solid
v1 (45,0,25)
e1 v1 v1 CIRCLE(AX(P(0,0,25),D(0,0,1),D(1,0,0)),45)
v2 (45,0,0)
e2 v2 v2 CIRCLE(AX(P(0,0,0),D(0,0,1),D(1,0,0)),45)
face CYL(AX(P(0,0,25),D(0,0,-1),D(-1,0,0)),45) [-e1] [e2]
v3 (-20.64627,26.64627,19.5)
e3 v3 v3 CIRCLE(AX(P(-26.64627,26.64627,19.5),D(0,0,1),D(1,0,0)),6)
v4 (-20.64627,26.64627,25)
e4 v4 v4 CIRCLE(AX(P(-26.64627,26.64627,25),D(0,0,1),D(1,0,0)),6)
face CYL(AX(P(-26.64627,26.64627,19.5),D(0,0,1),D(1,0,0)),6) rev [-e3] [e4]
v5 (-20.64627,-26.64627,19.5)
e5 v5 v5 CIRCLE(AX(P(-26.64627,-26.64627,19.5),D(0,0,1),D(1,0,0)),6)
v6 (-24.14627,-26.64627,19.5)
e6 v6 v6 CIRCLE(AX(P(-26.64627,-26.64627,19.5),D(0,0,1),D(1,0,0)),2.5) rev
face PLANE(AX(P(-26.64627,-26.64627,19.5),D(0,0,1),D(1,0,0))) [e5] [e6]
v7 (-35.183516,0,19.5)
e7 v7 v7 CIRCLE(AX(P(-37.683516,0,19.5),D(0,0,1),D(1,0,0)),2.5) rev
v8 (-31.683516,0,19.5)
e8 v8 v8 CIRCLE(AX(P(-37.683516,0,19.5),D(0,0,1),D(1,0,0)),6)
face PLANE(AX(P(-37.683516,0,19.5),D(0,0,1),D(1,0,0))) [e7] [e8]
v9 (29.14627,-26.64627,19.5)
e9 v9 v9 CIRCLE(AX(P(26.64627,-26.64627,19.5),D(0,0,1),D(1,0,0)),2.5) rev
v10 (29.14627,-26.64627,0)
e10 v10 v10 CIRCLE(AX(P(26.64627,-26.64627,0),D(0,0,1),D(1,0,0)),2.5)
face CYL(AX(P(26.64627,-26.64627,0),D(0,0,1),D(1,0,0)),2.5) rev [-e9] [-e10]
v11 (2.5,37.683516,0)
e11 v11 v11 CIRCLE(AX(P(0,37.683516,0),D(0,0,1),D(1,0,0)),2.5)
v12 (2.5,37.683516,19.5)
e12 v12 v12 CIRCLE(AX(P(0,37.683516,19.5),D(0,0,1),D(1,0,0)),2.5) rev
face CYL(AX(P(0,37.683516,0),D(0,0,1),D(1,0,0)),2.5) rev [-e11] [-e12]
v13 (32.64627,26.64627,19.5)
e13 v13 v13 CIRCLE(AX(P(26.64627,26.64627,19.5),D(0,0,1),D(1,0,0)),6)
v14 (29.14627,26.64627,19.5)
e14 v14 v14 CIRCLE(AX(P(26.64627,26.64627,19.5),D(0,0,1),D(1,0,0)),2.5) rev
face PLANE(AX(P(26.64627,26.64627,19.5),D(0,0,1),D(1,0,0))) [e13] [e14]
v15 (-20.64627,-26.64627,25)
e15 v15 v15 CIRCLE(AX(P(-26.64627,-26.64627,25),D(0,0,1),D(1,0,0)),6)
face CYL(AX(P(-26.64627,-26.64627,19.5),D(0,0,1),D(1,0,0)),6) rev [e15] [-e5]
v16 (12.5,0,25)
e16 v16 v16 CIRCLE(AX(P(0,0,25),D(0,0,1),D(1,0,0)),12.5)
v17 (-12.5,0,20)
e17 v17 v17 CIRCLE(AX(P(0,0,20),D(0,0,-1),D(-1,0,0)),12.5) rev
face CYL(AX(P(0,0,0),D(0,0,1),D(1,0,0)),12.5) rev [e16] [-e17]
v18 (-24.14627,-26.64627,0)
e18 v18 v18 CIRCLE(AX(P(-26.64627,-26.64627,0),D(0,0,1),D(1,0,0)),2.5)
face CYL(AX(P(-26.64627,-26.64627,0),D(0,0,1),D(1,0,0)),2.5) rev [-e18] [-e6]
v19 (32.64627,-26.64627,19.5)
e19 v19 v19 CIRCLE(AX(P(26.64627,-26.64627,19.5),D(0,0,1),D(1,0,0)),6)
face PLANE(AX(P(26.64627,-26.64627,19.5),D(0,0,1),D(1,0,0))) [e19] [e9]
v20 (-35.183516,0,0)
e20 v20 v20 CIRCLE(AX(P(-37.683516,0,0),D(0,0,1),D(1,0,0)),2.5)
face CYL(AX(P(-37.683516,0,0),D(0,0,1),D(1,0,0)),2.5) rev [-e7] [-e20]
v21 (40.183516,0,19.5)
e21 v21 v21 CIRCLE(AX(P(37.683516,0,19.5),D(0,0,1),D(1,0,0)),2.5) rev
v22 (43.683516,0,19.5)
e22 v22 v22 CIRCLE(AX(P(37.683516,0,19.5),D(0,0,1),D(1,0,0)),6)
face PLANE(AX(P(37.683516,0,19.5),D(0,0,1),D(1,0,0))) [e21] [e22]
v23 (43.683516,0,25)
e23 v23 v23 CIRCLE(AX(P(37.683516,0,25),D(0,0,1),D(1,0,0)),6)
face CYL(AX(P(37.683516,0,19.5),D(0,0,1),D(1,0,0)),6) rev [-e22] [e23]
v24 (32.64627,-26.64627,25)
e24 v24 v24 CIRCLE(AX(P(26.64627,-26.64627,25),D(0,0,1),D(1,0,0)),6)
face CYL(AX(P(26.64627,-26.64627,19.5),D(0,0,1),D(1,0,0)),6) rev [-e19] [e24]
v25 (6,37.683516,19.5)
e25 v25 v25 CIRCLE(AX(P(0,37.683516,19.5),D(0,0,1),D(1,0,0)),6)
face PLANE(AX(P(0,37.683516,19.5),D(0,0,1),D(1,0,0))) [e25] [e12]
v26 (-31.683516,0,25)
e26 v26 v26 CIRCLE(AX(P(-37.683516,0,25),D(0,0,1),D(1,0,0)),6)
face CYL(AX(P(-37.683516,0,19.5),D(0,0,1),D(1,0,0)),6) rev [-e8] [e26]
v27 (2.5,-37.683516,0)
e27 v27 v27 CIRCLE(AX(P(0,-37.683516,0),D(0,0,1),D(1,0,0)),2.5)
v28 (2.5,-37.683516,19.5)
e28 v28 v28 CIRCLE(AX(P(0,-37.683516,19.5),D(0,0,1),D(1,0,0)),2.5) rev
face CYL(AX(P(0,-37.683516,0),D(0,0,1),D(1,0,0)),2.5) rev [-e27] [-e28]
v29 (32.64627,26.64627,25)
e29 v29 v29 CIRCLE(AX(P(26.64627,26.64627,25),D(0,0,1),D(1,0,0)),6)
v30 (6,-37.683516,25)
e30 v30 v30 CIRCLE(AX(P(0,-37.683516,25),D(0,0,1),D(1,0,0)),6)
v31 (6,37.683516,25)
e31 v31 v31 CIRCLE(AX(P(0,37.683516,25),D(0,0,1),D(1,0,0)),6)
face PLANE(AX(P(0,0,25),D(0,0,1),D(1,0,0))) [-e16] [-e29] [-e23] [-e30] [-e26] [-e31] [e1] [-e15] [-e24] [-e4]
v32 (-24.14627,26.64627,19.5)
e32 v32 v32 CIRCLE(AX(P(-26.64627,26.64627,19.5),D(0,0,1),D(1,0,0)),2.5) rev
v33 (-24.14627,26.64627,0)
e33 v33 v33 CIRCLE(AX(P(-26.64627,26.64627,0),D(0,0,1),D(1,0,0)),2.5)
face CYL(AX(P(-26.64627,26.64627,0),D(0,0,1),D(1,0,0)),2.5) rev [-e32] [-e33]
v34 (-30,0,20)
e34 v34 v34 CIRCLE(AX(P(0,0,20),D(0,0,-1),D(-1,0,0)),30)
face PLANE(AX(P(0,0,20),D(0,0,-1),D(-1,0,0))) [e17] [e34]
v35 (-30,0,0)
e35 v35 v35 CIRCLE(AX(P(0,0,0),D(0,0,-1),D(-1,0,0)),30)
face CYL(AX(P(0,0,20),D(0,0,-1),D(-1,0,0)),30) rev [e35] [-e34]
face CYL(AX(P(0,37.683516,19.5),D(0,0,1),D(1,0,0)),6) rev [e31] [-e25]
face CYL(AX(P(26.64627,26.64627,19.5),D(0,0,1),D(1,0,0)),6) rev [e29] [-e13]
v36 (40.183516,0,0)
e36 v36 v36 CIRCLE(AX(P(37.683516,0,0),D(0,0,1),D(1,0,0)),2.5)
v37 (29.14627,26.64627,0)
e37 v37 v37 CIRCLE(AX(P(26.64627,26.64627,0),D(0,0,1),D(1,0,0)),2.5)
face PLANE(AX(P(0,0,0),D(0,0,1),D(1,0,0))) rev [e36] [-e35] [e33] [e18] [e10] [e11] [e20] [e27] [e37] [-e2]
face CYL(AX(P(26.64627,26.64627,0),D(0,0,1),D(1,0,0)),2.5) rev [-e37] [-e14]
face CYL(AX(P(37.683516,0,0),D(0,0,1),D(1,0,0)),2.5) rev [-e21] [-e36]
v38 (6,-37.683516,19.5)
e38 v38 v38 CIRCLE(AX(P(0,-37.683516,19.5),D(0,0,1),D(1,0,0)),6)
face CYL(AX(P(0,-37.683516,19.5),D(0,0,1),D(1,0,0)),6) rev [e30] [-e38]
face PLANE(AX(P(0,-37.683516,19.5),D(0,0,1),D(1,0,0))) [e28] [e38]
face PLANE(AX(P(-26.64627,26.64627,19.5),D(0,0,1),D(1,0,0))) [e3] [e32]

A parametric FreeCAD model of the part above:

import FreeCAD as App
import Part
import Sketcher

doc = App.newDocument("Part")
body = doc.addObject("PartDesign::Body", "Body")

# Sketch on XY plane
sketch1 = body.newObject("Sketcher::SketchObject", "Sketch")
sketch1.AttachmentSupport = (doc.getObject("XY_Plane"), [""])
sketch1.MapMode = "FlatFace"
sketch1.addGeometry(Part.Circle(App.Vector(0, 0, 0), App.Vector(0, 0, 1), 45), False)
sketch1.addConstraint([
    Sketcher.Constraint("Coincident", 0, 3, -1, 1),
    Sketcher.Constraint("Diameter", 0, 90.0),
])
pad1 = body.newObject("PartDesign::Pad", "Pad")
pad1.Profile = sketch1
pad1.Length = 25

# Sketch on XY plane
sketch2 = body.newObject("Sketcher::SketchObject", "Sketch001")
sketch2.AttachmentSupport = (doc.getObject("XY_Plane"), [""])
sketch2.MapMode = "FlatFace"
sketch2.AttachmentOffset = App.Placement(App.Vector(0, 0, 25), App.Rotation())
sketch2.addGeometry(Part.Circle(App.Vector(0, 0, 0), App.Vector(0, 0, 1), 12), False)
sketch2.addConstraint([
    Sketcher.Constraint("Coincident", 0, 3, -1, 1),
    Sketcher.Constraint("Diameter", 0, 25.0),
])
pocket1 = body.newObject("PartDesign::Pocket", "Pocket")
pocket1.Profile = sketch2
pocket1.Type = "ThroughAll"

# Sketch on XY plane
sketch3 = body.newObject("Sketcher::SketchObject", "Sketch002")
sketch3.AttachmentSupport = (doc.getObject("XY_Plane"), [""])
sketch3.MapMode = "FlatFace"
sketch3.addGeometry(Part.Circle(App.Vector(0, 0, 0), App.Vector(0, 0, 1), 30), False)
sketch3.addConstraint([
    Sketcher.Constraint("Coincident", 0, 3, -1, 1),
    Sketcher.Constraint("Diameter", 0, 60.0),
])
pocket2 = body.newObject("PartDesign::Pocket", "Pocket001")
pocket2.Profile = sketch3
pocket2.Length = 20
pocket2.Reversed = True

# Sketch on XY plane
sketch4 = body.newObject("Sketcher::SketchObject", "Sketch003")
sketch4.AttachmentSupport = (doc.getObject("XY_Plane"), [""])
sketch4.MapMode = "FlatFace"
sketch4.AttachmentOffset = App.Placement(App.Vector(0, 0, 25), App.Rotation())
sketch4.addGeometry([
    Part.Circle(App.Vector(0, 37.7, 0), App.Vector(0, 0, 1), 2.5),  # 0
    Part.Circle(App.Vector(26.6, 26.6, 0), App.Vector(0, 0, 1), 2.5),  # 1
    Part.Circle(App.Vector(37.7, 0, 0), App.Vector(0, 0, 1), 2.5),  # 2
    Part.Circle(App.Vector(26.6, -26.6, 0), App.Vector(0, 0, 1), 2.5),  # 3
    Part.Circle(App.Vector(0, -37.7, 0), App.Vector(0, 0, 1), 2.5),  # 4
    Part.Circle(App.Vector(-26.6, -26.6, 0), App.Vector(0, 0, 1), 2.5),  # 5
    Part.Circle(App.Vector(-37.7, 0, 0), App.Vector(0, 0, 1), 2.5),  # 6
    Part.Circle(App.Vector(-26.6, 26.6, 0), App.Vector(0, 0, 1), 2.5),  # 7
], False)
sketch4.addConstraint([
    Sketcher.Constraint("Equal", 0, 1),
    Sketcher.Constraint("Equal", 1, 2),
    Sketcher.Constraint("Equal", 2, 3),
    Sketcher.Constraint("Equal", 3, 4),
    Sketcher.Constraint("Equal", 4, 5),
    Sketcher.Constraint("Equal", 5, 6),
    Sketcher.Constraint("Equal", 6, 7),
    Sketcher.Constraint("Symmetric", 0, 3, 4, 3, -1, 1),
    Sketcher.Constraint("Symmetric", 1, 3, 5, 3, -1, 1),
    Sketcher.Constraint("Symmetric", 2, 3, 6, 3, -1, 1),
    Sketcher.Constraint("Symmetric", 3, 3, 7, 3, -1, 1),
    Sketcher.Constraint("Symmetric", 3, 3, 5, 3, -2),
    Sketcher.Constraint("PointOnObject", 0, 3, -2),
    Sketcher.Constraint("PointOnObject", 2, 3, -1),
    Sketcher.Constraint("Diameter", 0, 5.0),
    Sketcher.Constraint("DistanceX", -1, 1, 1, 3, 26.64627),
    Sketcher.Constraint("DistanceY", -1, 1, 1, 3, 26.64627),
    Sketcher.Constraint("DistanceY", -1, 1, 0, 3, 37.683516),
    Sketcher.Constraint("DistanceX", -1, 1, 2, 3, 37.683516),
])
pocket3 = body.newObject("PartDesign::Pocket", "Pocket002")
pocket3.Profile = sketch4
pocket3.Type = "ThroughAll"

# Sketch on XY plane
sketch5 = body.newObject("Sketcher::SketchObject", "Sketch004")
sketch5.AttachmentSupport = (doc.getObject("XY_Plane"), [""])
sketch5.MapMode = "FlatFace"
sketch5.AttachmentOffset = App.Placement(App.Vector(0, 0, 25), App.Rotation())
sketch5.addGeometry([
    Part.Circle(App.Vector(0, 38, 0), App.Vector(0, 0, 1), 6),  # 0
    Part.Circle(App.Vector(27, 27, 0), App.Vector(0, 0, 1), 6),  # 1
    Part.Circle(App.Vector(38, 0, 0), App.Vector(0, 0, 1), 6),  # 2
    Part.Circle(App.Vector(27, -27, 0), App.Vector(0, 0, 1), 6),  # 3
    Part.Circle(App.Vector(0, -38, 0), App.Vector(0, 0, 1), 6),  # 4
    Part.Circle(App.Vector(-27, -27, 0), App.Vector(0, 0, 1), 6),  # 5
    Part.Circle(App.Vector(-38, 0, 0), App.Vector(0, 0, 1), 6),  # 6
    Part.Circle(App.Vector(-27, 27, 0), App.Vector(0, 0, 1), 6),  # 7
], False)
sketch5.addConstraint([
    Sketcher.Constraint("Equal", 0, 1),
    Sketcher.Constraint("Equal", 1, 2),
    Sketcher.Constraint("Equal", 2, 3),
    Sketcher.Constraint("Equal", 3, 4),
    Sketcher.Constraint("Equal", 4, 5),
    Sketcher.Constraint("Equal", 5, 6),
    Sketcher.Constraint("Equal", 6, 7),
    Sketcher.Constraint("Symmetric", 0, 3, 4, 3, -1, 1),
    Sketcher.Constraint("Symmetric", 1, 3, 5, 3, -1, 1),
    Sketcher.Constraint("Symmetric", 2, 3, 6, 3, -1, 1),
    Sketcher.Constraint("Symmetric", 3, 3, 7, 3, -1, 1),
    Sketcher.Constraint("Symmetric", 3, 3, 5, 3, -2),
    Sketcher.Constraint("PointOnObject", 0, 3, -2),
    Sketcher.Constraint("PointOnObject", 2, 3, -1),
    Sketcher.Constraint("Diameter", 0, 12.0),
    Sketcher.Constraint("DistanceX", -1, 1, 1, 3, 26.64627),
    Sketcher.Constraint("DistanceY", -1, 1, 1, 3, 26.64627),
    Sketcher.Constraint("DistanceY", -1, 1, 0, 3, 37.683516),
    Sketcher.Constraint("DistanceX", -1, 1, 2, 3, 37.683516),
])
pocket4 = body.newObject("PartDesign::Pocket", "Pocket003")
pocket4.Profile = sketch5
pocket4.Length = 5.5

doc.recompute()
